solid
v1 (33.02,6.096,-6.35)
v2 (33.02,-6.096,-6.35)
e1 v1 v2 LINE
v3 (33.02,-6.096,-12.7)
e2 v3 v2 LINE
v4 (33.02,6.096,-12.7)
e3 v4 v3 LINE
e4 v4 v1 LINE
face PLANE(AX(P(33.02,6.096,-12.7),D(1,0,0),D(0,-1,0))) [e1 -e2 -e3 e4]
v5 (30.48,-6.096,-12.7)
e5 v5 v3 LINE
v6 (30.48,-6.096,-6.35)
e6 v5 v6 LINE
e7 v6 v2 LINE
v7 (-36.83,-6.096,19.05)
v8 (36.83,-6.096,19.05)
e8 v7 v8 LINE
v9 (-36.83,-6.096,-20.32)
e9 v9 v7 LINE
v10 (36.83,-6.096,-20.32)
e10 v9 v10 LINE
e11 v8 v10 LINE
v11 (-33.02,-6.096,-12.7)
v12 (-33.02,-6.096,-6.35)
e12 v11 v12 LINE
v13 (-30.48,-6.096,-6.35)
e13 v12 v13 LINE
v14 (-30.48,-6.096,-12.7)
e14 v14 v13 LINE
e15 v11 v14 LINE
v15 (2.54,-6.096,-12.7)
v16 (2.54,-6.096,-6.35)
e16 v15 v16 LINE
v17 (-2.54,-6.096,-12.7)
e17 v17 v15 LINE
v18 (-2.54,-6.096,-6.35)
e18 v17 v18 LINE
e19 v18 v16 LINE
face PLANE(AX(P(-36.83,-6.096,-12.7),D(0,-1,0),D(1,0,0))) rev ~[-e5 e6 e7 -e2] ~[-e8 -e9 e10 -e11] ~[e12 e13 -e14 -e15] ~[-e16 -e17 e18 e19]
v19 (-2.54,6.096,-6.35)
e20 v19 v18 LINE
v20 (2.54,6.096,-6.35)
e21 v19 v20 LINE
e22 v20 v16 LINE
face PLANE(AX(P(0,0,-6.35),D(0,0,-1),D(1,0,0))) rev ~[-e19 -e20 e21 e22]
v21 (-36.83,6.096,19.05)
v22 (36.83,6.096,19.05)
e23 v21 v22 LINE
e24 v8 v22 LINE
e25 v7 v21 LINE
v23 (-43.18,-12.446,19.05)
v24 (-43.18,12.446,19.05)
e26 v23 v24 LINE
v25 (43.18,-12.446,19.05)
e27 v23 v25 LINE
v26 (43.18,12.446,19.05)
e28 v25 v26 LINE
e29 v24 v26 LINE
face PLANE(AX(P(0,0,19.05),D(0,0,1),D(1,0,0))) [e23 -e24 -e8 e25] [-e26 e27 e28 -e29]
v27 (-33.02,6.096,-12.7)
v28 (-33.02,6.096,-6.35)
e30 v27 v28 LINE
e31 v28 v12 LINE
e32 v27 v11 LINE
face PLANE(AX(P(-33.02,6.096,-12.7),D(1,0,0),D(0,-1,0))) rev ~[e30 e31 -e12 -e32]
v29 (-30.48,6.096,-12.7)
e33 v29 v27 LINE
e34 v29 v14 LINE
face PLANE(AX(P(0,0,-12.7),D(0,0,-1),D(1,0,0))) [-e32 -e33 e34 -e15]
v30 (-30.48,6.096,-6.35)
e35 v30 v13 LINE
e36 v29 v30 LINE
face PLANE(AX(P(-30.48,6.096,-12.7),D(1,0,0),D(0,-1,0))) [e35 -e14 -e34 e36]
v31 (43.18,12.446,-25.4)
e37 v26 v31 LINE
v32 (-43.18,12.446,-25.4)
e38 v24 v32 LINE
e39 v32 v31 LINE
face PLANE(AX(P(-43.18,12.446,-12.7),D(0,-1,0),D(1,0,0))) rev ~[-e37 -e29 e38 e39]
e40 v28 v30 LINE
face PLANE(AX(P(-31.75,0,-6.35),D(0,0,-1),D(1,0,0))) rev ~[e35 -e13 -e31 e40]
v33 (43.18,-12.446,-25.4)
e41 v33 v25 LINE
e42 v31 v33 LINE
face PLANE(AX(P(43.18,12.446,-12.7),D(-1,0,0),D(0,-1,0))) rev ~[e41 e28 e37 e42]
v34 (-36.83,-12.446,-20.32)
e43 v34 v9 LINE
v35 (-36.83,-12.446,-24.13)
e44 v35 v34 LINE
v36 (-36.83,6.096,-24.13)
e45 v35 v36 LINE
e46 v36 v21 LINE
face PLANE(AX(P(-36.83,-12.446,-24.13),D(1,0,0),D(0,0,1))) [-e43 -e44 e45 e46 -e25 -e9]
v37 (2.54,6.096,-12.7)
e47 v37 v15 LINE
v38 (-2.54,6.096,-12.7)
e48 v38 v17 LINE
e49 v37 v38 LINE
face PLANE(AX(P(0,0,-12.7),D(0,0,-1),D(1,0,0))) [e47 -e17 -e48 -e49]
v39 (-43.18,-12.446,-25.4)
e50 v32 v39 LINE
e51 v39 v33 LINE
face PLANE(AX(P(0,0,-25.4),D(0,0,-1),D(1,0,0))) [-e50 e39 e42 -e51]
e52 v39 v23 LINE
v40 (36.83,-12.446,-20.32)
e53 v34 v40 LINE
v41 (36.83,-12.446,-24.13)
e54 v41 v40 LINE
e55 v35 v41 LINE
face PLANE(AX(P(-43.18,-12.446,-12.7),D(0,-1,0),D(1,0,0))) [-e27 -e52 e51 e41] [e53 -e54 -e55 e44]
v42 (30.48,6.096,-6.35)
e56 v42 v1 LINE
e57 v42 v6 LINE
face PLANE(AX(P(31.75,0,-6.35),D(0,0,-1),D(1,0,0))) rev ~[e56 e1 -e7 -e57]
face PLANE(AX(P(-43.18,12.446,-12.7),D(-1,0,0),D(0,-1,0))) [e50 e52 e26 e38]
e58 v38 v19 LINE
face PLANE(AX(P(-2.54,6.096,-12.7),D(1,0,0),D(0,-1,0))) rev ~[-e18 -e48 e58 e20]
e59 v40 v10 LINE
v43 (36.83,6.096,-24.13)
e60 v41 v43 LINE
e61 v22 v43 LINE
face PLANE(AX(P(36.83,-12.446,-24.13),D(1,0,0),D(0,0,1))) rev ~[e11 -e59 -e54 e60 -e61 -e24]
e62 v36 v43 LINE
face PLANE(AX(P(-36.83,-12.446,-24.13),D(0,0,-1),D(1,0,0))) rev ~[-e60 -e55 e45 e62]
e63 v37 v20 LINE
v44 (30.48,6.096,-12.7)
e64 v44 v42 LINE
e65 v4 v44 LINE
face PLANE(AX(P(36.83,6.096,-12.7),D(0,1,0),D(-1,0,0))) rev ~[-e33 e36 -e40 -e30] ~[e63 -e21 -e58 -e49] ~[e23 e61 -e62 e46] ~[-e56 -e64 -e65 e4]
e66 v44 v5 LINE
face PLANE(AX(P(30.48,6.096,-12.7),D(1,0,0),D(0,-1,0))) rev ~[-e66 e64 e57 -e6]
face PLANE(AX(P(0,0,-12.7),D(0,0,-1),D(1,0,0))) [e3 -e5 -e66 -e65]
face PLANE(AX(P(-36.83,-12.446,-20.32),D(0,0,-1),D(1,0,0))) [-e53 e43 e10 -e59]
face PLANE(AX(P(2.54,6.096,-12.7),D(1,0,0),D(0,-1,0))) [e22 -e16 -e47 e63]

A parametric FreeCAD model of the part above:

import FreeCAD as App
import Part
import Sketcher
Q = App.Units.Quantity

doc = App.newDocument("Part")
body = doc.addObject("PartDesign::Body", "Body")

# Sketch on XY plane
sketch1 = body.newObject("Sketcher::SketchObject", "Sketch")
sketch1.AttachmentSupport = (doc.getObject("XY_Plane"), [""])
sketch1.MapMode = "FlatFace"
sketch1.addGeometry([
    Part.LineSegment(App.Vector(-43.18, 12.446, 0), App.Vector(-43.18, -12.446, 0)),  # 0
    Part.LineSegment(App.Vector(-43.18, -12.446, 0), App.Vector(43.18, -12.446, 0)),  # 1
    Part.LineSegment(App.Vector(43.18, -12.446, 0), App.Vector(43.18, 12.446, 0)),  # 2
    Part.LineSegment(App.Vector(43.18, 12.446, 0), App.Vector(-43.18, 12.446, 0)),  # 3
    Part.LineSegment(App.Vector(36.83, -6.096, 0), App.Vector(-36.83, -6.096, 0)),  # 4
    Part.LineSegment(App.Vector(-36.83, -6.096, 0), App.Vector(-36.83, 6.096, 0)),  # 5
    Part.LineSegment(App.Vector(-36.83, 6.096, 0), App.Vector(36.83, 6.096, 0)),  # 6
    Part.LineSegment(App.Vector(36.83, 6.096, 0), App.Vector(36.83, -6.096, 0)),  # 7
], False)
sketch1.addConstraint([
    Sketcher.Constraint("Coincident", 0, 2, 1, 1),
    Sketcher.Constraint("Coincident", 1, 2, 2, 1),
    Sketcher.Constraint("Coincident", 2, 2, 3, 1),
    Sketcher.Constraint("Coincident", 3, 2, 0, 1),
    Sketcher.Constraint("Coincident", 4, 2, 5, 1),
    Sketcher.Constraint("Coincident", 5, 2, 6, 1),
    Sketcher.Constraint("Coincident", 6, 2, 7, 1),
    Sketcher.Constraint("Coincident", 7, 2, 4, 1),
    Sketcher.Constraint("Vertical", 0),
    Sketcher.Constraint("Horizontal", 1),
    Sketcher.Constraint("Vertical", 2),
    Sketcher.Constraint("Horizontal", 3),
    Sketcher.Constraint("Horizontal", 4),
    Sketcher.Constraint("Vertical", 5),
    Sketcher.Constraint("Horizontal", 6),
    Sketcher.Constraint("Vertical", 7),
    Sketcher.Constraint("Symmetric", 0, 2, 2, 2, -1, 1),
    Sketcher.Constraint("Symmetric", 4, 2, 6, 2, -1, 1),
    Sketcher.Constraint("DistanceX", 1, 1, 1, 2, Q("3.4 in")),
    Sketcher.Constraint("DistanceX", 4, 2, 4, 1, Q("2.9 in")),
    Sketcher.Constraint("DistanceY", 0, 2, 0, 1, Q("0.98 in")),
    Sketcher.Constraint("DistanceY", 5, 1, 5, 2, Q("0.48 in")),
])
pad1 = body.newObject("PartDesign::Pad", "Pad")
pad1.Profile = sketch1
pad1.Length = Q("0.75 in")

# Sketch on XY plane
sketch2 = body.newObject("Sketcher::SketchObject", "Sketch001")
sketch2.AttachmentSupport = (doc.getObject("XY_Plane"), [""])
sketch2.MapMode = "FlatFace"
sketch2.addGeometry([
    Part.LineSegment(App.Vector(-43.18, -12.446, 0), App.Vector(-43.18, 12.446, 0)),  # 0
    Part.LineSegment(App.Vector(-43.18, 12.446, 0), App.Vector(43.18, 12.446, 0)),  # 1
    Part.LineSegment(App.Vector(43.18, 12.446, 0), App.Vector(43.18, -12.446, 0)),  # 2
    Part.LineSegment(App.Vector(43.18, -12.446, 0), App.Vector(-43.18, -12.446, 0)),  # 3
    Part.LineSegment(App.Vector(36.83, 6.096, 0), App.Vector(-36.83, 6.096, 0)),  # 4
    Part.LineSegment(App.Vector(-36.83, 6.096, 0), App.Vector(-36.83, -6.096, 0)),  # 5
    Part.LineSegment(App.Vector(-36.83, -6.096, 0), App.Vector(36.83, -6.096, 0)),  # 6
    Part.LineSegment(App.Vector(36.83, -6.096, 0), App.Vector(36.83, 6.096, 0)),  # 7
], False)
sketch2.addConstraint([
    Sketcher.Constraint("Coincident", 0, 2, 1, 1),
    Sketcher.Constraint("Coincident", 1, 2, 2, 1),
    Sketcher.Constraint("Coincident", 2, 2, 3, 1),
    Sketcher.Constraint("Coincident", 3, 2, 0, 1),
    Sketcher.Constraint("Coincident", 4, 2, 5, 1),
    Sketcher.Constraint("Coincident", 5, 2, 6, 1),
    Sketcher.Constraint("Coincident", 6, 2, 7, 1),
    Sketcher.Constraint("Coincident", 7, 2, 4, 1),
    Sketcher.Constraint("Vertical", 0),
    Sketcher.Constraint("Horizontal", 1),
    Sketcher.Constraint("Vertical", 2),
    Sketcher.Constraint("Horizontal", 3),
    Sketcher.Constraint("Horizontal", 4),
    Sketcher.Constraint("Vertical", 5),
    Sketcher.Constraint("Horizontal", 6),
    Sketcher.Constraint("Vertical", 7),
    Sketcher.Constraint("Symmetric", 0, 2, 2, 2, -1, 1),
    Sketcher.Constraint("Symmetric", 4, 2, 6, 2, -1, 1),
    Sketcher.Constraint("DistanceX", 1, 1, 1, 2, Q("3.4 in")),
    Sketcher.Constraint("DistanceX", 4, 2, 4, 1, Q("2.9 in")),
    Sketcher.Constraint("DistanceY", 0, 1, 0, 2, Q("0.98 in")),
    Sketcher.Constraint("DistanceY", 5, 2, 5, 1, Q("0.48 in")),
])
pad2 = body.newObject("PartDesign::Pad", "Pad001")
pad2.Profile = sketch2
pad2.Length = Q("0.5 in")
pad2.Reversed = True

# Sketch on XY plane
sketch3 = body.newObject("Sketcher::SketchObject", "Sketch002")
sketch3.AttachmentSupport = (doc.getObject("XY_Plane"), [""])
sketch3.MapMode = "FlatFace"
sketch3.AttachmentOffset = App.Placement(App.Vector(0, 0, -0.5 * 25.4), App.Rotation())
sketch3.addGeometry([
    Part.LineSegment(App.Vector(-33.02, -6.096, 0), App.Vector(-33.02, 6.096, 0)),  # 0
    Part.LineSegment(App.Vector(-33.02, 6.096, 0), App.Vector(-30.48, 6.096, 0)),  # 1
    Part.LineSegment(App.Vector(-30.48, 6.096, 0), App.Vector(-30.48, -6.096, 0)),  # 2
    Part.LineSegment(App.Vector(-30.48, -6.096, 0), App.Vector(-33.02, -6.096, 0)),  # 3
    Part.LineSegment(App.Vector(-2.54, -6.096, 0), App.Vector(-2.54, 6.096, 0)),  # 4
    Part.LineSegment(App.Vector(-2.54, 6.096, 0), App.Vector(2.54, 6.096, 0)),  # 5
    Part.LineSegment(App.Vector(2.54, 6.096, 0), App.Vector(2.54, -6.096, 0)),  # 6
    Part.LineSegment(App.Vector(2.54, -6.096, 0), App.Vector(-2.54, -6.096, 0)),  # 7
    Part.LineSegment(App.Vector(30.48, -6.096, 0), App.Vector(30.48, 6.096, 0)),  # 8
    Part.LineSegment(App.Vector(30.48, 6.096, 0), App.Vector(33.02, 6.096, 0)),  # 9
    Part.LineSegment(App.Vector(33.02, 6.096, 0), App.Vector(33.02, -6.096, 0)),  # 10
    Part.LineSegment(App.Vector(33.02, -6.096, 0), App.Vector(30.48, -6.096, 0)),  # 11
], False)
sketch3.addConstraint([
    Sketcher.Constraint("Coincident", 0, 2, 1, 1),
    Sketcher.Constraint("Coincident", 1, 2, 2, 1),
    Sketcher.Constraint("Coincident", 2, 2, 3, 1),
    Sketcher.Constraint("Coincident", 3, 2, 0, 1),
    Sketcher.Constraint("Coincident", 4, 2, 5, 1),
    Sketcher.Constraint("Coincident", 5, 2, 6, 1),
    Sketcher.Constraint("Coincident", 6, 2, 7, 1),
    Sketcher.Constraint("Coincident", 7, 2, 4, 1),
    Sketcher.Constraint("Coincident", 8, 2, 9, 1),
    Sketcher.Constraint("Coincident", 9, 2, 10, 1),
    Sketcher.Constraint("Coincident", 10, 2, 11, 1),
    Sketcher.Constraint("Coincident", 11, 2, 8, 1),
    Sketcher.Constraint("Vertical", 0),
    Sketcher.Constraint("Horizontal", 1),
    Sketcher.Constraint("Vertical", 2),
    Sketcher.Constraint("Horizontal", 3),
    Sketcher.Constraint("Vertical", 4),
    Sketcher.Constraint("Horizontal", 5),
    Sketcher.Constraint("Vertical", 6),
    Sketcher.Constraint("Horizontal", 7),
    Sketcher.Constraint("Vertical", 8),
    Sketcher.Constraint("Horizontal", 9),
    Sketcher.Constraint("Vertical", 10),
    Sketcher.Constraint("Horizontal", 11),
    Sketcher.Constraint("Symmetric", 4, 2, 6, 2, -1, 1),
    Sketcher.Constraint("Symmetric", 2, 2, 8, 2, -1, 1),
    Sketcher.Constraint("Symmetric", 0, 2, 10, 2, -1, 1),
    Sketcher.Constraint("Horizontal", 1, 2, 4, 2),
    Sketcher.Constraint("Horizontal", 3, 2, 6, 2),
    Sketcher.Constraint("DistanceX", 1, 1, 1, 2, Q("0.1 in")),
    Sketcher.Constraint("DistanceX", 5, 1, 5, 2, Q("0.2 in")),
    Sketcher.Constraint("DistanceY", 0, 1, 0, 2, Q("0.48 in")),
    Sketcher.Constraint("DistanceX", 0, 2, -1, 1, Q("1.3 in")),
])
pad3 = body.newObject("PartDesign::Pad", "Pad002")
pad3.Profile = sketch3
pad3.Length = Q("0.25 in")

# Sketch on XY plane
sketch4 = body.newObject("Sketcher::SketchObject", "Sketch003")
sketch4.AttachmentSupport = (doc.getObject("XY_Plane"), [""])
sketch4.MapMode = "FlatFace"
sketch4.AttachmentOffset = App.Placement(App.Vector(0, 0, -0.5 * 25.4), App.Rotation())
sketch4.addGeometry([
    Part.LineSegment(App.Vector(-43.18, -12.446, 0), App.Vector(-43.18, 12.446, 0)),  # 0
    Part.LineSegment(App.Vector(-43.18, 12.446, 0), App.Vector(43.18, 12.446, 0)),  # 1
    Part.LineSegment(App.Vector(43.18, 12.446, 0), App.Vector(43.18, -12.446, 0)),  # 2
    Part.LineSegment(App.Vector(43.18, -12.446, 0), App.Vector(-43.18, -12.446, 0)),  # 3
    Part.LineSegment(App.Vector(-36.83, -6.096, 0), App.Vector(36.83, -6.096, 0)),  # 4
    Part.LineSegment(App.Vector(36.83, -6.096, 0), App.Vector(36.83, 6.096, 0)),  # 5
    Part.LineSegment(App.Vector(36.83, 6.096, 0), App.Vector(-36.83, 6.096, 0)),  # 6
    Part.LineSegment(App.Vector(-36.83, 6.096, 0), App.Vector(-36.83, -6.096, 0)),  # 7
], False)
sketch4.addConstraint([
    Sketcher.Constraint("Coincident", 0, 2, 1, 1),
    Sketcher.Constraint("Coincident", 1, 2, 2, 1),
    Sketcher.Constraint("Coincident", 2, 2, 3, 1),
    Sketcher.Constraint("Coincident", 3, 2, 0, 1),
    Sketcher.Constraint("Coincident", 4, 2, 5, 1),
    Sketcher.Constraint("Coincident", 5, 2, 6, 1),
    Sketcher.Constraint("Coincident", 6, 2, 7, 1),
    Sketcher.Constraint("Coincident", 7, 2, 4, 1),
    Sketcher.Constraint("Vertical", 0),
    Sketcher.Constraint("Horizontal", 1),
    Sketcher.Constraint("Vertical", 2),
    Sketcher.Constraint("Horizontal", 3),
    Sketcher.Constraint("Horizontal", 4),
    Sketcher.Constraint("Vertical", 5),
    Sketcher.Constraint("Horizontal", 6),
    Sketcher.Constraint("Vertical", 7),
    Sketcher.Constraint("Symmetric", 0, 2, 2, 2, -1, 1),
    Sketcher.Constraint("Symmetric", 4, 2, 6, 2, -1, 1),
    Sketcher.Constraint("DistanceX", 1, 1, 1, 2, Q("3.4 in")),
    Sketcher.Constraint("DistanceX", 4, 1, 4, 2, Q("2.9 in")),
    Sketcher.Constraint("DistanceY", 0, 1, 0, 2, Q("0.98 in")),
    Sketcher.Constraint("DistanceY", 5, 1, 5, 2, Q("0.48 in")),
])
pad4 = body.newObject("PartDesign::Pad", "Pad003")
pad4.Profile = sketch4
pad4.Length = Q("0.5 in")
pad4.Reversed = True

# Sketch on XY plane
sketch5 = body.newObject("Sketcher::SketchObject", "Sketch004")
sketch5.AttachmentSupport = (doc.getObject("XY_Plane"), [""])
sketch5.MapMode = "FlatFace"
sketch5.AttachmentOffset = App.Placement(App.Vector(0, 0, -1 * 25.4), App.Rotation())
sketch5.addGeometry([
    Part.LineSegment(App.Vector(-36.83, -6.096, 0), App.Vector(-36.83, 6.096, 0)),
    Part.LineSegment(App.Vector(-36.83, 6.096, 0), App.Vector(36.83, 6.096, 0)),
    Part.LineSegment(App.Vector(36.83, 6.096, 0), App.Vector(36.83, -6.096, 0)),
    Part.LineSegment(App.Vector(36.83, -6.096, 0), App.Vector(-36.83, -6.096, 0)),
], False)
sketch5.addConstraint([
    Sketcher.Constraint("Coincident", 0, 2, 1, 1),
    Sketcher.Constraint("Coincident", 1, 2, 2, 1),
    Sketcher.Constraint("Coincident", 2, 2, 3, 1),
    Sketcher.Constraint("Coincident", 3, 2, 0, 1),
    Sketcher.Constraint("Vertical", 0),
    Sketcher.Constraint("Horizontal", 1),
    Sketcher.Constraint("Vertical", 2),
    Sketcher.Constraint("Horizontal", 3),
    Sketcher.Constraint("Symmetric", 0, 2, 2, 2, -1, 1),
    Sketcher.Constraint("DistanceX", 1, 1, 1, 2, Q("2.9 in")),
    Sketcher.Constraint("DistanceY", 0, 1, 0, 2, Q("0.48 in")),
])
pad5 = body.newObject("PartDesign::Pad", "Pad004")
pad5.Profile = sketch5
pad5.Length = Q("0.1 in")

# Sketch on XZ plane
sketch6 = body.newObject("Sketcher::SketchObject", "Sketch005")
sketch6.AttachmentSupport = (doc.getObject("XZ_Plane"), [""])
sketch6.MapMode = "FlatFace"
sketch6.AttachmentOffset = App.Placement(App.Vector(0, 0, 0.49 * 25.4), App.Rotation())
sketch6.addGeometry([
    Part.LineSegment(App.Vector(-36.83, -20.32, 0), App.Vector(-36.83, -24.13, 0)),
    Part.LineSegment(App.Vector(-36.83, -24.13, 0), App.Vector(36.83, -24.13, 0)),
    Part.LineSegment(App.Vector(36.83, -24.13, 0), App.Vector(36.83, -20.32, 0)),
    Part.LineSegment(App.Vector(36.83, -20.32, 0), App.Vector(-36.83, -20.32, 0)),
], False)
sketch6.addConstraint([
    Sketcher.Constraint("Coincident", 0, 2, 1, 1),
    Sketcher.Constraint("Coincident", 1, 2, 2, 1),
    Sketcher.Constraint("Coincident", 2, 2, 3, 1),
    Sketcher.Constraint("Coincident", 3, 2, 0, 1),
    Sketcher.Constraint("Vertical", 0),
    Sketcher.Constraint("Horizontal", 1),
    Sketcher.Constraint("Vertical", 2),
    Sketcher.Constraint("Horizontal", 3),
    Sketcher.Constraint("DistanceX", 1, 1, 1, 2, Q("2.9 in")),
    Sketcher.Constraint("DistanceY", 0, 2, 0, 1, Q("0.15 in")),
    Sketcher.Constraint("DistanceY", 2, 2, -1, 1, Q("0.8 in")),
    Sketcher.Constraint("DistanceX", 0, 2, -1, 1, Q("1.45 in")),
])
pocket1 = body.newObject("PartDesign::Pocket", "Pocket")
pocket1.Profile = sketch6
pocket1.Length = Q("0.73 in")

doc.recompute()
